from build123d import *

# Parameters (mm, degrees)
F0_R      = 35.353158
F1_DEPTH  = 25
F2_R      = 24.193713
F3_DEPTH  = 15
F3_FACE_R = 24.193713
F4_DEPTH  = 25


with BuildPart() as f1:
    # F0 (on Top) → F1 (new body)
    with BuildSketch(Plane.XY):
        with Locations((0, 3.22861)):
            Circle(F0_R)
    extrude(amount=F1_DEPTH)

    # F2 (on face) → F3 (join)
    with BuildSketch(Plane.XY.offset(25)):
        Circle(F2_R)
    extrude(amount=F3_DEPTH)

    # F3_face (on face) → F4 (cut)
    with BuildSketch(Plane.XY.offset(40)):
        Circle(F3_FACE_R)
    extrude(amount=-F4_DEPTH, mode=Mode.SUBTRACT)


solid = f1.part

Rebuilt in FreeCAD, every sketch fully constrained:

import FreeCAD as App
import Part
import Sketcher

V = App.Vector

doc = App.newDocument("Part")
body = doc.addObject("PartDesign::Body", "Body")

# Sketch on XY plane
sketch1 = doc.addObject("Sketcher::SketchObject", "Sketch")
body.addObject(sketch1)
sketch1.AttachmentSupport = (doc.XY_Plane, [""])
sketch1.MapMode = "FlatFace"
sketch1.addGeometry(Part.Circle(V(0, 3, 0), V(0, 0, 1), 35), False)
sketch1.addConstraint(Sketcher.Constraint("PointOnObject", 0, 3, -2))
sketch1.addConstraint(Sketcher.Constraint("Diameter", 0, 70.706316))
sketch1.addConstraint(Sketcher.Constraint("DistanceY", -1, 1, 0, 3, 3.22861))
pad1 = doc.addObject("PartDesign::Pad", "Pad")
body.addObject(pad1)
pad1.Profile = sketch1
pad1.Length = 25

# Sketch on XY plane
sketch2 = doc.addObject("Sketcher::SketchObject", "Sketch001")
body.addObject(sketch2)
sketch2.AttachmentSupport = (doc.XY_Plane, [""])
sketch2.MapMode = "FlatFace"
sketch2.AttachmentOffset = App.Placement(V(0, 0, 25), App.Rotation())
sketch2.addGeometry(Part.Circle(V(0, 0, 0), V(0, 0, 1), 24), False)
sketch2.addConstraint(Sketcher.Constraint("Coincident", 0, 3, -1, 1))
sketch2.addConstraint(Sketcher.Constraint("Diameter", 0, 48.387426))
pad2 = doc.addObject("PartDesign::Pad", "Pad001")
body.addObject(pad2)
pad2.Profile = sketch2
pad2.Length = 15

# Sketch on XY plane
sketch3 = doc.addObject("Sketcher::SketchObject", "Sketch002")
body.addObject(sketch3)
sketch3.AttachmentSupport = (doc.XY_Plane, [""])
sketch3.MapMode = "FlatFace"
sketch3.AttachmentOffset = App.Placement(V(0, 0, 40), App.Rotation())
sketch3.addGeometry(Part.Circle(V(0, 0, 0), V(0, 0, 1), 24), False)
sketch3.addConstraint(Sketcher.Constraint("Coincident", 0, 3, -1, 1))
sketch3.addConstraint(Sketcher.Constraint("Diameter", 0, 48.387426))
pocket1 = doc.addObject("PartDesign::Pocket", "Pocket")
body.addObject(pocket1)
pocket1.Profile = sketch3
pocket1.Length = 25

doc.recompute()
